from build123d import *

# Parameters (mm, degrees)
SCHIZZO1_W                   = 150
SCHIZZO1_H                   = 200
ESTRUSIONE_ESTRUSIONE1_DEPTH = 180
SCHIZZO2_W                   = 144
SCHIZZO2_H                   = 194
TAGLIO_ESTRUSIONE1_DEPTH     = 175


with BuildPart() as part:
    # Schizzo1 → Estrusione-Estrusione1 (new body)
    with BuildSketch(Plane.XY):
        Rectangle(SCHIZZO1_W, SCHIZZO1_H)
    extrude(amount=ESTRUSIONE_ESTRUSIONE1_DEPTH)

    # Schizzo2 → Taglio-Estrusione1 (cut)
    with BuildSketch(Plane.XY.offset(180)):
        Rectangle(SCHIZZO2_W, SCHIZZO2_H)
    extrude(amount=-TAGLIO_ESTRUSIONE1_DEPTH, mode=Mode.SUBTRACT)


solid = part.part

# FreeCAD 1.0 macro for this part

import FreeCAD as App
import Part
import Sketcher

V = App.Vector


def add_polygon(sketch, points):
    """Adds a closed chain of lines whose ends are joined by coincident constraints."""
    first, n = sketch.GeometryCount, len(points)
    for a, b in zip(points, points[1:] + points[:1]):
        sketch.addGeometry(Part.LineSegment(App.Vector(*a, 0), App.Vector(*b, 0)), False)
    for i in range(n):
        sketch.addConstraint(Sketcher.Constraint("Coincident", first + i, 2, first + (i + 1) % n, 1))

doc = App.newDocument("Part")
body = doc.addObject("PartDesign::Body", "Body")

sketch1 = body.newObject("Sketcher::SketchObject", "Sketch")
sketch1.AttachmentSupport = (doc.getObject("XY_Plane"), [""])
sketch1.MapMode = "FlatFace"
add_polygon(sketch1, [(-75, 100), (-75, -100), (75, -100), (75, 100)])
sketch1.addConstraint([
    Sketcher.Constraint("Vertical", 0),
    Sketcher.Constraint("Horizontal", 1),
    Sketcher.Constraint("Vertical", 2),
    Sketcher.Constraint("Horizontal", 3),
    Sketcher.Constraint("Symmetric", 0, 2, 2, 2, -1, 1),
    Sketcher.Constraint("DistanceX", 1, 1, 1, 2, 150.0),
    Sketcher.Constraint("DistanceY", 0, 2, 0, 1, 200.0),
])
pad1 = body.newObject("PartDesign::Pad", "Pad")
pad1.Profile = sketch1
pad1.Length = 180

sketch2 = body.newObject("Sketcher::SketchObject", "Sketch001")
sketch2.AttachmentSupport = (doc.getObject("XY_Plane"), [""])
sketch2.MapMode = "FlatFace"
sketch2.AttachmentOffset = App.Placement(V(0, 0, 180), App.Rotation())
add_polygon(sketch2, [(-72, 97), (-72, -97), (72, -97), (72, 97)])
sketch2.addConstraint([
    Sketcher.Constraint("Vertical", 0),
    Sketcher.Constraint("Horizontal", 1),
    Sketcher.Constraint("Vertical", 2),
    Sketcher.Constraint("Horizontal", 3),
    Sketcher.Constraint("Symmetric", 0, 2, 2, 2, -1, 1),
    Sketcher.Constraint("DistanceX", 1, 1, 1, 2, 144.0),
    Sketcher.Constraint("DistanceY", 0, 2, 0, 1, 194.0),
])
pocket1 = body.newObject("PartDesign::Pocket", "Pocket")
pocket1.Profile = sketch2
pocket1.Length = 175

doc.recompute()
